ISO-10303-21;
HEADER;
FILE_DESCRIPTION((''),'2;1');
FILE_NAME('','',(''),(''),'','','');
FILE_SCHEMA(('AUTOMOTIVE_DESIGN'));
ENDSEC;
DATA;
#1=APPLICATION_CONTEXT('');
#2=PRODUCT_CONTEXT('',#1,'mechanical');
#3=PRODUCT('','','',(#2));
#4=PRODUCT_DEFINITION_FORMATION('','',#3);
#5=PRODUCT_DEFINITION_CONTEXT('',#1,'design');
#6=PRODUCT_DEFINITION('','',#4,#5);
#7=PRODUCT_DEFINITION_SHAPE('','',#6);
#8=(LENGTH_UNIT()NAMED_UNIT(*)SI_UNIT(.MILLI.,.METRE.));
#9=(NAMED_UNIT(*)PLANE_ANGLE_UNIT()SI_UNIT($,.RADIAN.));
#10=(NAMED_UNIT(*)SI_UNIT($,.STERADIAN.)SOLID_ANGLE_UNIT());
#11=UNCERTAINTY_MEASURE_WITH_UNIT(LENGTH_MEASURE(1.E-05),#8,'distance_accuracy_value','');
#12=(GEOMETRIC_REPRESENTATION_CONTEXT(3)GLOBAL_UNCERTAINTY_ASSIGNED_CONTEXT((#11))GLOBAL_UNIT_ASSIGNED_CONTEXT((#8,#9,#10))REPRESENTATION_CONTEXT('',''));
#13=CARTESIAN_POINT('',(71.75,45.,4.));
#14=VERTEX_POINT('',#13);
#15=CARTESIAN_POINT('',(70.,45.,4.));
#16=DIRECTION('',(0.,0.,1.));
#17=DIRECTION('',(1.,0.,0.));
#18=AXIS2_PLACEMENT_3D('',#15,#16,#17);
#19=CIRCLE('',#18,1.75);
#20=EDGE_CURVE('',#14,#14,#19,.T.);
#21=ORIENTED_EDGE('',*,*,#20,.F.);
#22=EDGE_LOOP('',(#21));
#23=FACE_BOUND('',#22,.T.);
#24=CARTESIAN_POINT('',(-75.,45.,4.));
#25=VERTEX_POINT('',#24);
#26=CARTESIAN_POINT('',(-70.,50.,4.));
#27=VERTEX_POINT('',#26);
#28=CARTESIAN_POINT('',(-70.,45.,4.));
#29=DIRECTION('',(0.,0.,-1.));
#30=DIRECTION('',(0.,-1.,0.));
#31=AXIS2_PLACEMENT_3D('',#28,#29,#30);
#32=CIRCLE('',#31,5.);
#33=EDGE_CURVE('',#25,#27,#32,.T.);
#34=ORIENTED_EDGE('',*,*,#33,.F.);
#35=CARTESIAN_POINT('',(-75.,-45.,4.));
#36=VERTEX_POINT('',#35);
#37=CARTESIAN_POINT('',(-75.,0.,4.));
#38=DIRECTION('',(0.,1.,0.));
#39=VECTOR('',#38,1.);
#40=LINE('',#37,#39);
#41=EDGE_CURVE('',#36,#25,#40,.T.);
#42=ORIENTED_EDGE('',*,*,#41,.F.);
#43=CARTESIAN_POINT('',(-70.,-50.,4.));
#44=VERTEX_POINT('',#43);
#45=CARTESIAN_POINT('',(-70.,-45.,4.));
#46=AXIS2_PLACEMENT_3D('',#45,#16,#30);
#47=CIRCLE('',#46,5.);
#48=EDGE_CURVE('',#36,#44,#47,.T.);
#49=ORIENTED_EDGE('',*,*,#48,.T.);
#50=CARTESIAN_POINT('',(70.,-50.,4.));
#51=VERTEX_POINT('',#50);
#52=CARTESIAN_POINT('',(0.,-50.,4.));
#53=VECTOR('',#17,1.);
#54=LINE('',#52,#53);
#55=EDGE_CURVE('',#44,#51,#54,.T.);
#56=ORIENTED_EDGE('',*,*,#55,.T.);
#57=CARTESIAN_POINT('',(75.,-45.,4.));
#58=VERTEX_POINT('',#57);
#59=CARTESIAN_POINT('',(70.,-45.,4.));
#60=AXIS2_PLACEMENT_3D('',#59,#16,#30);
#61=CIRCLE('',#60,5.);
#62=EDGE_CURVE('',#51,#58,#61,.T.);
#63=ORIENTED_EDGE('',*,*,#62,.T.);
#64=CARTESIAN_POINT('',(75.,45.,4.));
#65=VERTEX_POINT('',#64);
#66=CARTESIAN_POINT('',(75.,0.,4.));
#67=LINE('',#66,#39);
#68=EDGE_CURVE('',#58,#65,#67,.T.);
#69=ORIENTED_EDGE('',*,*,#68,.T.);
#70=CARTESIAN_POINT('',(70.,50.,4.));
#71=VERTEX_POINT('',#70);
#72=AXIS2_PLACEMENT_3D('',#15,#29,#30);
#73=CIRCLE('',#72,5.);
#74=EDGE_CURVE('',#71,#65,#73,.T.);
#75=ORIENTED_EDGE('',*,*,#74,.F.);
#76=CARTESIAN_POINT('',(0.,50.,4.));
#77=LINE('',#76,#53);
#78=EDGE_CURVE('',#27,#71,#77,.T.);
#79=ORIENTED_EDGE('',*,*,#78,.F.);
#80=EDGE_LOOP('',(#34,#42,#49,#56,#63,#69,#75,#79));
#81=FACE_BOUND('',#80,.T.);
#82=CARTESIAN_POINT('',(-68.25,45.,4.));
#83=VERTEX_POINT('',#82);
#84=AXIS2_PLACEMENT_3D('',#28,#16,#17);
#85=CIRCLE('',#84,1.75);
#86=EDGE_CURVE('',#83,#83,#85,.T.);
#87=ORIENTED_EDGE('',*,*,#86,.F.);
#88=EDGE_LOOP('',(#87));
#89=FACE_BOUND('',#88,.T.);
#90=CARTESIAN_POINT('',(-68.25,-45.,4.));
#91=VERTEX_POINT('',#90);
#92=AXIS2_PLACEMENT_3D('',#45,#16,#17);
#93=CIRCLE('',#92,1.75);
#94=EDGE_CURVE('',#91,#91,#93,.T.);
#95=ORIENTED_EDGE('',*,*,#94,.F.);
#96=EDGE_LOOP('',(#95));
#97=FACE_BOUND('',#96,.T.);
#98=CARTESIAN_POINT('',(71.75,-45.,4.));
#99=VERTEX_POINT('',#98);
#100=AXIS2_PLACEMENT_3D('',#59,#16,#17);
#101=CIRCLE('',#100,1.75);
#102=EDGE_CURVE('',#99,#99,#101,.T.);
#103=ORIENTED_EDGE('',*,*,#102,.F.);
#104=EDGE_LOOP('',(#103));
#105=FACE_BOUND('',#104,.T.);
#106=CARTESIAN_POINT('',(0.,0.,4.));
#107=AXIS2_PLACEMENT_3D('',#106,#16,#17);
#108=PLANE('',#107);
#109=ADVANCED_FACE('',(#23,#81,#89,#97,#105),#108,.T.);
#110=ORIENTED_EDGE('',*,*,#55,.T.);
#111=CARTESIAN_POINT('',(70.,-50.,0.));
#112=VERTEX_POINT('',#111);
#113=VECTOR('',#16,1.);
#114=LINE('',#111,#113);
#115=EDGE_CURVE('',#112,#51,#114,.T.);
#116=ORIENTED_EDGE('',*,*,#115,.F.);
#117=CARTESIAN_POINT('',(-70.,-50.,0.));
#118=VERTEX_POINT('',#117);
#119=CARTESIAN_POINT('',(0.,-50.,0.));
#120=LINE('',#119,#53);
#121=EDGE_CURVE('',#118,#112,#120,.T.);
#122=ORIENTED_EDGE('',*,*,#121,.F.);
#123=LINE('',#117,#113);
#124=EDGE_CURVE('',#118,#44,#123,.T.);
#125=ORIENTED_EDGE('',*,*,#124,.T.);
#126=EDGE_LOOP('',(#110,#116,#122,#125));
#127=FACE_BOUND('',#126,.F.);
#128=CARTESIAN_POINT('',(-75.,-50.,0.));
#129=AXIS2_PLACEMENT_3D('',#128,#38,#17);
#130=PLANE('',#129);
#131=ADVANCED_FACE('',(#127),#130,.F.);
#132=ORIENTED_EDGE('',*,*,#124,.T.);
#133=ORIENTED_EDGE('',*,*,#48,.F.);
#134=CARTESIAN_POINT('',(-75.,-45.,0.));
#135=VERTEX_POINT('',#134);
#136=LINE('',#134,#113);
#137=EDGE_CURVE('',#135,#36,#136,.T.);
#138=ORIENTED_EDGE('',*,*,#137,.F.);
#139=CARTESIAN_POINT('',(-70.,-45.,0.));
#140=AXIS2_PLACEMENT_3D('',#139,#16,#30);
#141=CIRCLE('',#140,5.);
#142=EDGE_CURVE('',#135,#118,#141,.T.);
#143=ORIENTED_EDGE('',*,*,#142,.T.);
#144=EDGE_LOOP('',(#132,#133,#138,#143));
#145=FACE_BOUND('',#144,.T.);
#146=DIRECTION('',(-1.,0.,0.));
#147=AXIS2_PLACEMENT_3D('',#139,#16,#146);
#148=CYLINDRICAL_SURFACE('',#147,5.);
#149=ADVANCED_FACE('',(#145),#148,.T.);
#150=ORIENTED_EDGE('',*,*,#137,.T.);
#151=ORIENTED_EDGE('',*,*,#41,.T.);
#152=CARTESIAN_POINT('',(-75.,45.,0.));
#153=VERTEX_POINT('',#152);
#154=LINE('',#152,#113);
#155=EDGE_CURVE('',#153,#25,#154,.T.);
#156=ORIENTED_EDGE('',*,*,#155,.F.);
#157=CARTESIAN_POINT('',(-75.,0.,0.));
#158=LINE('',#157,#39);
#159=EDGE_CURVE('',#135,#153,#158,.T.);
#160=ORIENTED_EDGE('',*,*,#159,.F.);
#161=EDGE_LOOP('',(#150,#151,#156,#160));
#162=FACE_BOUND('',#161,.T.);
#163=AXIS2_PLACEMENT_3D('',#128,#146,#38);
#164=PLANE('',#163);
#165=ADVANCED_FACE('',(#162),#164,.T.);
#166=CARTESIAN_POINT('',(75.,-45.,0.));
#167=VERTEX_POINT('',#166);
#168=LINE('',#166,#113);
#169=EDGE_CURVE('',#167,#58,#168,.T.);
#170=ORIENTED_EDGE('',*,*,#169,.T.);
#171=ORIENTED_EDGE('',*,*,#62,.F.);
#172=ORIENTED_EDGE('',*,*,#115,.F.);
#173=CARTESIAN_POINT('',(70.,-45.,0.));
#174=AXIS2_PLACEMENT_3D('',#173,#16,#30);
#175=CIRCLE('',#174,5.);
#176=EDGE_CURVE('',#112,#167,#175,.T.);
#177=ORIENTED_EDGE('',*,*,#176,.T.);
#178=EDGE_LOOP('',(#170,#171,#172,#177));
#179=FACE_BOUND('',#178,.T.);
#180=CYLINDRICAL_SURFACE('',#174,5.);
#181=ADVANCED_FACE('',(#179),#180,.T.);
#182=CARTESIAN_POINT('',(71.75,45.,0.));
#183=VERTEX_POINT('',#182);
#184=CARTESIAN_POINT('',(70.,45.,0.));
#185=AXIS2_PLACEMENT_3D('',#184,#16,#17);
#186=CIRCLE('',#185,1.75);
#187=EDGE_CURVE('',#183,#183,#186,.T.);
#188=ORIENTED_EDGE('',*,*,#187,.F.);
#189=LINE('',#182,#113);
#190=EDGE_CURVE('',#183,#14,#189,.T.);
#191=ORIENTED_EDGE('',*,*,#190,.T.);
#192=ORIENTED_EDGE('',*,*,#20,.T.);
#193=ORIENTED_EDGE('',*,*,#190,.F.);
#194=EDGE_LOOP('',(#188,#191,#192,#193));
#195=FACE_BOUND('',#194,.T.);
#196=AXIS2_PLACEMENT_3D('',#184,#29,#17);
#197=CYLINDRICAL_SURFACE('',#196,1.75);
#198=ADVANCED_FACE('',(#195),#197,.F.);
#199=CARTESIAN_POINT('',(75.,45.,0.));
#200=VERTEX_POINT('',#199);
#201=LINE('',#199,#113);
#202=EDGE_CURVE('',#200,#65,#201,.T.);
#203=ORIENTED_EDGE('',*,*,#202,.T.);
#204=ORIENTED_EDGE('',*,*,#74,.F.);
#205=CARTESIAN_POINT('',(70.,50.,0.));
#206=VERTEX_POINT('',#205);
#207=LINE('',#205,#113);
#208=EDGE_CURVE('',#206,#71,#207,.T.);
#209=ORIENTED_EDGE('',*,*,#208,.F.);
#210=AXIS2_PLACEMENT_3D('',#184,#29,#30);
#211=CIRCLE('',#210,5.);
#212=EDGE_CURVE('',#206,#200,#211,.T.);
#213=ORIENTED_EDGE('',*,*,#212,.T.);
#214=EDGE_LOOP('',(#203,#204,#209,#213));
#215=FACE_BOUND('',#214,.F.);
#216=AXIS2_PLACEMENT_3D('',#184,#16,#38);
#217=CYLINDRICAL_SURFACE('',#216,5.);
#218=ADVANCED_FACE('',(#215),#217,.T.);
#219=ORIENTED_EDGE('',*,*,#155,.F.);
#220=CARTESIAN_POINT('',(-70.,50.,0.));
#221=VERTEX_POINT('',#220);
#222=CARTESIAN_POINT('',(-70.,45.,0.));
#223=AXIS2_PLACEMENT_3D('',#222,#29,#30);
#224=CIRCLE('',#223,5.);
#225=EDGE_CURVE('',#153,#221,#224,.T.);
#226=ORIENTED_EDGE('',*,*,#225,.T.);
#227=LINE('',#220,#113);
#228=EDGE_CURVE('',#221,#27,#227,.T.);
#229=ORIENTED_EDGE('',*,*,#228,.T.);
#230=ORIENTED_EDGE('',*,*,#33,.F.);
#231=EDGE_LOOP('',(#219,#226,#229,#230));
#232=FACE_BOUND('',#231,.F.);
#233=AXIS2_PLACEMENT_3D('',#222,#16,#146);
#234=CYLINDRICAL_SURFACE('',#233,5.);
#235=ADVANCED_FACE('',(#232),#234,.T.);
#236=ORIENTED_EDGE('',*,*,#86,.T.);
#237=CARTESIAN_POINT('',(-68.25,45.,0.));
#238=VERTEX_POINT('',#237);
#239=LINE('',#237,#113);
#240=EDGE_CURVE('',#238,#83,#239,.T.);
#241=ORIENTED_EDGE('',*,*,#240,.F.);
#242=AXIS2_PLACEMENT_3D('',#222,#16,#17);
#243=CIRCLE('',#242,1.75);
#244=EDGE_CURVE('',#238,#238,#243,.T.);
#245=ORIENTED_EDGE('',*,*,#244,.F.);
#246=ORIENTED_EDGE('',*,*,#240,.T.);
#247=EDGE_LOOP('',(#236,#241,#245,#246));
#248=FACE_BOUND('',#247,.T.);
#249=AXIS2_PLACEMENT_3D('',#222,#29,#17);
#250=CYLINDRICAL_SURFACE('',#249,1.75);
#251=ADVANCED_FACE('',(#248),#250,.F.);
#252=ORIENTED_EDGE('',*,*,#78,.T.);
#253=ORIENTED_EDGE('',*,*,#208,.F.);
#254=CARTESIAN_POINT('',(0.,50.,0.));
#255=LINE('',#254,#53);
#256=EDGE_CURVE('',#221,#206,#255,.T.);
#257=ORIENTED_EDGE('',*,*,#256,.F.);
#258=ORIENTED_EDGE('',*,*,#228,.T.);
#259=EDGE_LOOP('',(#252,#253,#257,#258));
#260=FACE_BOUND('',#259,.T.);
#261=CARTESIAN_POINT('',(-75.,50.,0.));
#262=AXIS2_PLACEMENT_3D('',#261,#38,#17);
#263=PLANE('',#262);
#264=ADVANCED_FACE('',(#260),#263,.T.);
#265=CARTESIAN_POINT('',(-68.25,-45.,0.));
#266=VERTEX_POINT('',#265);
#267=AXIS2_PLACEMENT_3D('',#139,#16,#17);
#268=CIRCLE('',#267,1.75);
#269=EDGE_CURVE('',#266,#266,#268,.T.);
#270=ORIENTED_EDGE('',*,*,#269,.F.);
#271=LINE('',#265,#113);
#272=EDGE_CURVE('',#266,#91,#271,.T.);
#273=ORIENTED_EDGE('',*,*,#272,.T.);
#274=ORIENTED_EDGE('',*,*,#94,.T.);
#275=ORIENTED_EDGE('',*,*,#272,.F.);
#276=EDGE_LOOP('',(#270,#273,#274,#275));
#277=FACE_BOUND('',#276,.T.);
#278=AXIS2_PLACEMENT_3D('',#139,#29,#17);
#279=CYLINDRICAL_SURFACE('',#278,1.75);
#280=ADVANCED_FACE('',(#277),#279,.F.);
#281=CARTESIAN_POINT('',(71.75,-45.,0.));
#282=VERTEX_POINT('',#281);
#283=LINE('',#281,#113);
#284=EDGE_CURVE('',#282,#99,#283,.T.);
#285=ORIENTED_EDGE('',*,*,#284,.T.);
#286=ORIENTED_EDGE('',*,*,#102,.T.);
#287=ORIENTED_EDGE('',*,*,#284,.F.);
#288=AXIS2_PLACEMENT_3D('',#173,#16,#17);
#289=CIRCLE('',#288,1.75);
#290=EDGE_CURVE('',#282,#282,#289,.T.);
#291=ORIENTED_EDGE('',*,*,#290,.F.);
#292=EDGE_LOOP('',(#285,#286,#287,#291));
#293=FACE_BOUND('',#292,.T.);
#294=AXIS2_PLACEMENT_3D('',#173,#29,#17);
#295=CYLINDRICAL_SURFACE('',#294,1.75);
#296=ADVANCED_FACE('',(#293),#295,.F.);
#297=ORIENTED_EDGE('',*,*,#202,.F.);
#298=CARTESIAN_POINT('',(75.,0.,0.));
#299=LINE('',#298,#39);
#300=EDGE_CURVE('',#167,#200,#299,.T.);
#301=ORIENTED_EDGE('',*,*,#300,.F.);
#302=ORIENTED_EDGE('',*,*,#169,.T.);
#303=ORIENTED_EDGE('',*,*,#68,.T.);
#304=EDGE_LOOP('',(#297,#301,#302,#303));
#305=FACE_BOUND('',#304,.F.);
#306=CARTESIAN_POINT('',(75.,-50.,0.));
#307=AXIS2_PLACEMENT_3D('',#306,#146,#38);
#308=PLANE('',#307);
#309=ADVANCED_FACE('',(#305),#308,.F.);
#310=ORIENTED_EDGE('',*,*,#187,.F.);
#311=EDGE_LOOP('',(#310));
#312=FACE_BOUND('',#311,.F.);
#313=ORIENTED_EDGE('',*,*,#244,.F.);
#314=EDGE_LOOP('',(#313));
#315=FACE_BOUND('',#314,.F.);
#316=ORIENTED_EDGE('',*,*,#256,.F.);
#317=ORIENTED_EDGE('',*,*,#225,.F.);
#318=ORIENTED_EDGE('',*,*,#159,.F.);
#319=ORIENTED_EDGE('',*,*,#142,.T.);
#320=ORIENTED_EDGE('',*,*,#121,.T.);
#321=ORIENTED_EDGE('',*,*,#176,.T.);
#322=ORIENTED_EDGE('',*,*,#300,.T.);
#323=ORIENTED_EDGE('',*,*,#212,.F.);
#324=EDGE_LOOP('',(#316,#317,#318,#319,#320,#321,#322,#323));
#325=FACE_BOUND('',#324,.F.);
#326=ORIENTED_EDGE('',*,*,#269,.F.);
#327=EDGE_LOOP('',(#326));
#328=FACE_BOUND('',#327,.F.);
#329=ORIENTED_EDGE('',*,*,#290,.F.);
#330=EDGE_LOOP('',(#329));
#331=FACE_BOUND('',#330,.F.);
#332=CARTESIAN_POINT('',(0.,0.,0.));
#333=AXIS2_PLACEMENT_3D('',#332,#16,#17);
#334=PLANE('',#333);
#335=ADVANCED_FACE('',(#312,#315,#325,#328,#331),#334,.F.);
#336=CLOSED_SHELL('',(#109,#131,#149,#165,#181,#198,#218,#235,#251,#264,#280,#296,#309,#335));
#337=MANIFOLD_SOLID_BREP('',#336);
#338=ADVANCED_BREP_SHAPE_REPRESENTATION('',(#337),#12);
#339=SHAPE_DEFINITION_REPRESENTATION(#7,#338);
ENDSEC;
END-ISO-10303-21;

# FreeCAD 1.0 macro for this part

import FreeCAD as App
import Part
import Sketcher

V = App.Vector


def edges_at(feature, points):
    """Names of the edges that pass closest to the given points."""
    edges = feature.Shape.Edges
    near = lambda p: min(range(len(edges)), key=lambda i: edges[i].distToShape(Part.Vertex(*p))[0])
    return sorted({f"Edge{near(p) + 1}" for p in points})

doc = App.newDocument("Part")
body = doc.addObject("PartDesign::Body", "Body")

# Sketch on XY plane
sketch1 = body.newObject("Sketcher::SketchObject", "Sketch")
sketch1.AttachmentSupport = (doc.getObject("XY_Plane"), [""])
sketch1.MapMode = "FlatFace"
sketch1.addGeometry(Part.LineSegment(V(-75, 50, 0), V(-75, -50, 0)), False)
sketch1.addGeometry(Part.LineSegment(V(-75, -50, 0), V(75, -50, 0)), False)
sketch1.addGeometry(Part.LineSegment(V(75, -50, 0), V(75, 50, 0)), False)
sketch1.addGeometry(Part.LineSegment(V(75, 50, 0), V(-75, 50, 0)), False)
sketch1.addGeometry(Part.Circle(V(-70, -45, 0), V(0, 0, 1), 1.8), False)
sketch1.addGeometry(Part.Circle(V(70, -45, 0), V(0, 0, 1), 1.8), False)
sketch1.addGeometry(Part.Circle(V(-70, 45, 0), V(0, 0, 1), 1.8), False)
sketch1.addGeometry(Part.Circle(V(70, 45, 0), V(0, 0, 1), 1.8), False)
sketch1.addConstraint(Sketcher.Constraint("Coincident", 0, 2, 1, 1))
sketch1.addConstraint(Sketcher.Constraint("Coincident", 1, 2, 2, 1))
sketch1.addConstraint(Sketcher.Constraint("Coincident", 2, 2, 3, 1))
sketch1.addConstraint(Sketcher.Constraint("Coincident", 3, 2, 0, 1))
sketch1.addConstraint(Sketcher.Constraint("Vertical", 0))
sketch1.addConstraint(Sketcher.Constraint("Horizontal", 1))
sketch1.addConstraint(Sketcher.Constraint("Vertical", 2))
sketch1.addConstraint(Sketcher.Constraint("Horizontal", 3))
sketch1.addConstraint(Sketcher.Constraint("Equal", 4, 5))
sketch1.addConstraint(Sketcher.Constraint("Equal", 5, 6))
sketch1.addConstraint(Sketcher.Constraint("Equal", 6, 7))
sketch1.addConstraint(Sketcher.Constraint("Symmetric", 5, 3, 6, 3, -1, 1))
sketch1.addConstraint(Sketcher.Constraint("Symmetric", 4, 3, 7, 3, -1, 1))
sketch1.addConstraint(Sketcher.Constraint("Symmetric", 0, 2, 2, 2, -1, 1))
sketch1.addConstraint(Sketcher.Constraint("Symmetric", 4, 3, 5, 3, -2))
sketch1.addConstraint(Sketcher.Constraint("Diameter", 4, 3.5))
sketch1.addConstraint(Sketcher.Constraint("DistanceX", 1, 1, 1, 2, 150.0))
sketch1.addConstraint(Sketcher.Constraint("DistanceY", 0, 2, 0, 1, 100.0))
sketch1.addConstraint(Sketcher.Constraint("DistanceX", 4, 3, -1, 1, 70.0))
sketch1.addConstraint(Sketcher.Constraint("DistanceY", 4, 3, -1, 1, 45.0))
pad1 = body.newObject("PartDesign::Pad", "Pad")
pad1.Profile = sketch1
pad1.Length = 4
doc.recompute()

fillet = body.newObject("PartDesign::Fillet", "Fillet")
fillet.Base = (pad1, edges_at(pad1, [
    (-75, 50, 2),
    (75, 50, 2),
    (75, -50, 2),
    (-75, -50, 2),
]))
fillet.Radius = 5

doc.recompute()
